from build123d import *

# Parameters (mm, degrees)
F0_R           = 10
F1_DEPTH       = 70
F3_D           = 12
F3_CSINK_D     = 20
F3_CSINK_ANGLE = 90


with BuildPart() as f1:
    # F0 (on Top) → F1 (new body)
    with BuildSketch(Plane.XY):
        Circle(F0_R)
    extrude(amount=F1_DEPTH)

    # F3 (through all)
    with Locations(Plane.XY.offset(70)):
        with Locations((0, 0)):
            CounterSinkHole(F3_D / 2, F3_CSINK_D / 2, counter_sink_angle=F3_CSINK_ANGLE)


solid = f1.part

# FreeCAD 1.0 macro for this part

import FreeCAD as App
import Part
import Sketcher
from FreeCAD import Vector
Q = App.Units.Quantity

doc = App.newDocument("Part")
params = doc.addObject("Spreadsheet::Sheet", "Params")
for row, (alias, value) in enumerate([
    ("sketch1_diameter", "20 mm"),
    ("pad1_length", "70 mm"),
    ("sketch2_diameter", "12 mm"),
    ("hole_diameter", "12 mm"),
    ("hole_csink_diameter", "20 mm"),
], start=1):
    params.set(f"A{row}", alias)
    params.set(f"B{row}", "=" + value)
    params.setAlias(f"B{row}", alias)

body = doc.addObject("PartDesign::Body", "Body")

# Sketch on XY plane
sketch1 = body.newObject("Sketcher::SketchObject", "Sketch")
sketch1.AttachmentSupport = (doc.getObject("XY_Plane"), [""])
sketch1.MapMode = "FlatFace"
sketch1.addGeometry(Part.Circle(Vector(0, 0, 0), Vector(0, 0, 1), 10), False)
sketch1.addConstraint([
    Sketcher.Constraint("Coincident", 0, 3, -1, 1),
    Sketcher.Constraint("Diameter", 0, Q("20 mm")),
])
sketch1.setExpression("Constraints[1]", "Params.sketch1_diameter")
pad1 = body.newObject("PartDesign::Pad", "Pad")
pad1.Profile = sketch1
pad1.setExpression("Length", "Params.pad1_length")

# Sketch on XY plane
sketch2 = body.newObject("Sketcher::SketchObject", "Sketch001")
sketch2.AttachmentSupport = (doc.getObject("XY_Plane"), [""])
sketch2.MapMode = "FlatFace"
sketch2.AttachmentOffset = App.Placement(Vector(0, 0, 70), App.Rotation())
sketch2.addGeometry(Part.Circle(Vector(0, 0, 0), Vector(0, 0, 1), 6), False)
sketch2.addConstraint([
    Sketcher.Constraint("Coincident", 0, 3, -1, 1),
    Sketcher.Constraint("Diameter", 0, Q("12 mm")),
])
sketch2.setExpression("Constraints[1]", "Params.sketch2_diameter")
doc.recompute()
hole = body.newObject("PartDesign::Hole", "Hole")
hole.Profile = sketch2
hole.ThreadType = "None"
hole.setExpression("Diameter", "Params.hole_diameter")
hole.DepthType = "ThroughAll"
hole.HoleCutType = "Countersink"
hole.setExpression("HoleCutDiameter", "Params.hole_csink_diameter")
hole.HoleCutCountersinkAngle = 90

doc.recompute()
